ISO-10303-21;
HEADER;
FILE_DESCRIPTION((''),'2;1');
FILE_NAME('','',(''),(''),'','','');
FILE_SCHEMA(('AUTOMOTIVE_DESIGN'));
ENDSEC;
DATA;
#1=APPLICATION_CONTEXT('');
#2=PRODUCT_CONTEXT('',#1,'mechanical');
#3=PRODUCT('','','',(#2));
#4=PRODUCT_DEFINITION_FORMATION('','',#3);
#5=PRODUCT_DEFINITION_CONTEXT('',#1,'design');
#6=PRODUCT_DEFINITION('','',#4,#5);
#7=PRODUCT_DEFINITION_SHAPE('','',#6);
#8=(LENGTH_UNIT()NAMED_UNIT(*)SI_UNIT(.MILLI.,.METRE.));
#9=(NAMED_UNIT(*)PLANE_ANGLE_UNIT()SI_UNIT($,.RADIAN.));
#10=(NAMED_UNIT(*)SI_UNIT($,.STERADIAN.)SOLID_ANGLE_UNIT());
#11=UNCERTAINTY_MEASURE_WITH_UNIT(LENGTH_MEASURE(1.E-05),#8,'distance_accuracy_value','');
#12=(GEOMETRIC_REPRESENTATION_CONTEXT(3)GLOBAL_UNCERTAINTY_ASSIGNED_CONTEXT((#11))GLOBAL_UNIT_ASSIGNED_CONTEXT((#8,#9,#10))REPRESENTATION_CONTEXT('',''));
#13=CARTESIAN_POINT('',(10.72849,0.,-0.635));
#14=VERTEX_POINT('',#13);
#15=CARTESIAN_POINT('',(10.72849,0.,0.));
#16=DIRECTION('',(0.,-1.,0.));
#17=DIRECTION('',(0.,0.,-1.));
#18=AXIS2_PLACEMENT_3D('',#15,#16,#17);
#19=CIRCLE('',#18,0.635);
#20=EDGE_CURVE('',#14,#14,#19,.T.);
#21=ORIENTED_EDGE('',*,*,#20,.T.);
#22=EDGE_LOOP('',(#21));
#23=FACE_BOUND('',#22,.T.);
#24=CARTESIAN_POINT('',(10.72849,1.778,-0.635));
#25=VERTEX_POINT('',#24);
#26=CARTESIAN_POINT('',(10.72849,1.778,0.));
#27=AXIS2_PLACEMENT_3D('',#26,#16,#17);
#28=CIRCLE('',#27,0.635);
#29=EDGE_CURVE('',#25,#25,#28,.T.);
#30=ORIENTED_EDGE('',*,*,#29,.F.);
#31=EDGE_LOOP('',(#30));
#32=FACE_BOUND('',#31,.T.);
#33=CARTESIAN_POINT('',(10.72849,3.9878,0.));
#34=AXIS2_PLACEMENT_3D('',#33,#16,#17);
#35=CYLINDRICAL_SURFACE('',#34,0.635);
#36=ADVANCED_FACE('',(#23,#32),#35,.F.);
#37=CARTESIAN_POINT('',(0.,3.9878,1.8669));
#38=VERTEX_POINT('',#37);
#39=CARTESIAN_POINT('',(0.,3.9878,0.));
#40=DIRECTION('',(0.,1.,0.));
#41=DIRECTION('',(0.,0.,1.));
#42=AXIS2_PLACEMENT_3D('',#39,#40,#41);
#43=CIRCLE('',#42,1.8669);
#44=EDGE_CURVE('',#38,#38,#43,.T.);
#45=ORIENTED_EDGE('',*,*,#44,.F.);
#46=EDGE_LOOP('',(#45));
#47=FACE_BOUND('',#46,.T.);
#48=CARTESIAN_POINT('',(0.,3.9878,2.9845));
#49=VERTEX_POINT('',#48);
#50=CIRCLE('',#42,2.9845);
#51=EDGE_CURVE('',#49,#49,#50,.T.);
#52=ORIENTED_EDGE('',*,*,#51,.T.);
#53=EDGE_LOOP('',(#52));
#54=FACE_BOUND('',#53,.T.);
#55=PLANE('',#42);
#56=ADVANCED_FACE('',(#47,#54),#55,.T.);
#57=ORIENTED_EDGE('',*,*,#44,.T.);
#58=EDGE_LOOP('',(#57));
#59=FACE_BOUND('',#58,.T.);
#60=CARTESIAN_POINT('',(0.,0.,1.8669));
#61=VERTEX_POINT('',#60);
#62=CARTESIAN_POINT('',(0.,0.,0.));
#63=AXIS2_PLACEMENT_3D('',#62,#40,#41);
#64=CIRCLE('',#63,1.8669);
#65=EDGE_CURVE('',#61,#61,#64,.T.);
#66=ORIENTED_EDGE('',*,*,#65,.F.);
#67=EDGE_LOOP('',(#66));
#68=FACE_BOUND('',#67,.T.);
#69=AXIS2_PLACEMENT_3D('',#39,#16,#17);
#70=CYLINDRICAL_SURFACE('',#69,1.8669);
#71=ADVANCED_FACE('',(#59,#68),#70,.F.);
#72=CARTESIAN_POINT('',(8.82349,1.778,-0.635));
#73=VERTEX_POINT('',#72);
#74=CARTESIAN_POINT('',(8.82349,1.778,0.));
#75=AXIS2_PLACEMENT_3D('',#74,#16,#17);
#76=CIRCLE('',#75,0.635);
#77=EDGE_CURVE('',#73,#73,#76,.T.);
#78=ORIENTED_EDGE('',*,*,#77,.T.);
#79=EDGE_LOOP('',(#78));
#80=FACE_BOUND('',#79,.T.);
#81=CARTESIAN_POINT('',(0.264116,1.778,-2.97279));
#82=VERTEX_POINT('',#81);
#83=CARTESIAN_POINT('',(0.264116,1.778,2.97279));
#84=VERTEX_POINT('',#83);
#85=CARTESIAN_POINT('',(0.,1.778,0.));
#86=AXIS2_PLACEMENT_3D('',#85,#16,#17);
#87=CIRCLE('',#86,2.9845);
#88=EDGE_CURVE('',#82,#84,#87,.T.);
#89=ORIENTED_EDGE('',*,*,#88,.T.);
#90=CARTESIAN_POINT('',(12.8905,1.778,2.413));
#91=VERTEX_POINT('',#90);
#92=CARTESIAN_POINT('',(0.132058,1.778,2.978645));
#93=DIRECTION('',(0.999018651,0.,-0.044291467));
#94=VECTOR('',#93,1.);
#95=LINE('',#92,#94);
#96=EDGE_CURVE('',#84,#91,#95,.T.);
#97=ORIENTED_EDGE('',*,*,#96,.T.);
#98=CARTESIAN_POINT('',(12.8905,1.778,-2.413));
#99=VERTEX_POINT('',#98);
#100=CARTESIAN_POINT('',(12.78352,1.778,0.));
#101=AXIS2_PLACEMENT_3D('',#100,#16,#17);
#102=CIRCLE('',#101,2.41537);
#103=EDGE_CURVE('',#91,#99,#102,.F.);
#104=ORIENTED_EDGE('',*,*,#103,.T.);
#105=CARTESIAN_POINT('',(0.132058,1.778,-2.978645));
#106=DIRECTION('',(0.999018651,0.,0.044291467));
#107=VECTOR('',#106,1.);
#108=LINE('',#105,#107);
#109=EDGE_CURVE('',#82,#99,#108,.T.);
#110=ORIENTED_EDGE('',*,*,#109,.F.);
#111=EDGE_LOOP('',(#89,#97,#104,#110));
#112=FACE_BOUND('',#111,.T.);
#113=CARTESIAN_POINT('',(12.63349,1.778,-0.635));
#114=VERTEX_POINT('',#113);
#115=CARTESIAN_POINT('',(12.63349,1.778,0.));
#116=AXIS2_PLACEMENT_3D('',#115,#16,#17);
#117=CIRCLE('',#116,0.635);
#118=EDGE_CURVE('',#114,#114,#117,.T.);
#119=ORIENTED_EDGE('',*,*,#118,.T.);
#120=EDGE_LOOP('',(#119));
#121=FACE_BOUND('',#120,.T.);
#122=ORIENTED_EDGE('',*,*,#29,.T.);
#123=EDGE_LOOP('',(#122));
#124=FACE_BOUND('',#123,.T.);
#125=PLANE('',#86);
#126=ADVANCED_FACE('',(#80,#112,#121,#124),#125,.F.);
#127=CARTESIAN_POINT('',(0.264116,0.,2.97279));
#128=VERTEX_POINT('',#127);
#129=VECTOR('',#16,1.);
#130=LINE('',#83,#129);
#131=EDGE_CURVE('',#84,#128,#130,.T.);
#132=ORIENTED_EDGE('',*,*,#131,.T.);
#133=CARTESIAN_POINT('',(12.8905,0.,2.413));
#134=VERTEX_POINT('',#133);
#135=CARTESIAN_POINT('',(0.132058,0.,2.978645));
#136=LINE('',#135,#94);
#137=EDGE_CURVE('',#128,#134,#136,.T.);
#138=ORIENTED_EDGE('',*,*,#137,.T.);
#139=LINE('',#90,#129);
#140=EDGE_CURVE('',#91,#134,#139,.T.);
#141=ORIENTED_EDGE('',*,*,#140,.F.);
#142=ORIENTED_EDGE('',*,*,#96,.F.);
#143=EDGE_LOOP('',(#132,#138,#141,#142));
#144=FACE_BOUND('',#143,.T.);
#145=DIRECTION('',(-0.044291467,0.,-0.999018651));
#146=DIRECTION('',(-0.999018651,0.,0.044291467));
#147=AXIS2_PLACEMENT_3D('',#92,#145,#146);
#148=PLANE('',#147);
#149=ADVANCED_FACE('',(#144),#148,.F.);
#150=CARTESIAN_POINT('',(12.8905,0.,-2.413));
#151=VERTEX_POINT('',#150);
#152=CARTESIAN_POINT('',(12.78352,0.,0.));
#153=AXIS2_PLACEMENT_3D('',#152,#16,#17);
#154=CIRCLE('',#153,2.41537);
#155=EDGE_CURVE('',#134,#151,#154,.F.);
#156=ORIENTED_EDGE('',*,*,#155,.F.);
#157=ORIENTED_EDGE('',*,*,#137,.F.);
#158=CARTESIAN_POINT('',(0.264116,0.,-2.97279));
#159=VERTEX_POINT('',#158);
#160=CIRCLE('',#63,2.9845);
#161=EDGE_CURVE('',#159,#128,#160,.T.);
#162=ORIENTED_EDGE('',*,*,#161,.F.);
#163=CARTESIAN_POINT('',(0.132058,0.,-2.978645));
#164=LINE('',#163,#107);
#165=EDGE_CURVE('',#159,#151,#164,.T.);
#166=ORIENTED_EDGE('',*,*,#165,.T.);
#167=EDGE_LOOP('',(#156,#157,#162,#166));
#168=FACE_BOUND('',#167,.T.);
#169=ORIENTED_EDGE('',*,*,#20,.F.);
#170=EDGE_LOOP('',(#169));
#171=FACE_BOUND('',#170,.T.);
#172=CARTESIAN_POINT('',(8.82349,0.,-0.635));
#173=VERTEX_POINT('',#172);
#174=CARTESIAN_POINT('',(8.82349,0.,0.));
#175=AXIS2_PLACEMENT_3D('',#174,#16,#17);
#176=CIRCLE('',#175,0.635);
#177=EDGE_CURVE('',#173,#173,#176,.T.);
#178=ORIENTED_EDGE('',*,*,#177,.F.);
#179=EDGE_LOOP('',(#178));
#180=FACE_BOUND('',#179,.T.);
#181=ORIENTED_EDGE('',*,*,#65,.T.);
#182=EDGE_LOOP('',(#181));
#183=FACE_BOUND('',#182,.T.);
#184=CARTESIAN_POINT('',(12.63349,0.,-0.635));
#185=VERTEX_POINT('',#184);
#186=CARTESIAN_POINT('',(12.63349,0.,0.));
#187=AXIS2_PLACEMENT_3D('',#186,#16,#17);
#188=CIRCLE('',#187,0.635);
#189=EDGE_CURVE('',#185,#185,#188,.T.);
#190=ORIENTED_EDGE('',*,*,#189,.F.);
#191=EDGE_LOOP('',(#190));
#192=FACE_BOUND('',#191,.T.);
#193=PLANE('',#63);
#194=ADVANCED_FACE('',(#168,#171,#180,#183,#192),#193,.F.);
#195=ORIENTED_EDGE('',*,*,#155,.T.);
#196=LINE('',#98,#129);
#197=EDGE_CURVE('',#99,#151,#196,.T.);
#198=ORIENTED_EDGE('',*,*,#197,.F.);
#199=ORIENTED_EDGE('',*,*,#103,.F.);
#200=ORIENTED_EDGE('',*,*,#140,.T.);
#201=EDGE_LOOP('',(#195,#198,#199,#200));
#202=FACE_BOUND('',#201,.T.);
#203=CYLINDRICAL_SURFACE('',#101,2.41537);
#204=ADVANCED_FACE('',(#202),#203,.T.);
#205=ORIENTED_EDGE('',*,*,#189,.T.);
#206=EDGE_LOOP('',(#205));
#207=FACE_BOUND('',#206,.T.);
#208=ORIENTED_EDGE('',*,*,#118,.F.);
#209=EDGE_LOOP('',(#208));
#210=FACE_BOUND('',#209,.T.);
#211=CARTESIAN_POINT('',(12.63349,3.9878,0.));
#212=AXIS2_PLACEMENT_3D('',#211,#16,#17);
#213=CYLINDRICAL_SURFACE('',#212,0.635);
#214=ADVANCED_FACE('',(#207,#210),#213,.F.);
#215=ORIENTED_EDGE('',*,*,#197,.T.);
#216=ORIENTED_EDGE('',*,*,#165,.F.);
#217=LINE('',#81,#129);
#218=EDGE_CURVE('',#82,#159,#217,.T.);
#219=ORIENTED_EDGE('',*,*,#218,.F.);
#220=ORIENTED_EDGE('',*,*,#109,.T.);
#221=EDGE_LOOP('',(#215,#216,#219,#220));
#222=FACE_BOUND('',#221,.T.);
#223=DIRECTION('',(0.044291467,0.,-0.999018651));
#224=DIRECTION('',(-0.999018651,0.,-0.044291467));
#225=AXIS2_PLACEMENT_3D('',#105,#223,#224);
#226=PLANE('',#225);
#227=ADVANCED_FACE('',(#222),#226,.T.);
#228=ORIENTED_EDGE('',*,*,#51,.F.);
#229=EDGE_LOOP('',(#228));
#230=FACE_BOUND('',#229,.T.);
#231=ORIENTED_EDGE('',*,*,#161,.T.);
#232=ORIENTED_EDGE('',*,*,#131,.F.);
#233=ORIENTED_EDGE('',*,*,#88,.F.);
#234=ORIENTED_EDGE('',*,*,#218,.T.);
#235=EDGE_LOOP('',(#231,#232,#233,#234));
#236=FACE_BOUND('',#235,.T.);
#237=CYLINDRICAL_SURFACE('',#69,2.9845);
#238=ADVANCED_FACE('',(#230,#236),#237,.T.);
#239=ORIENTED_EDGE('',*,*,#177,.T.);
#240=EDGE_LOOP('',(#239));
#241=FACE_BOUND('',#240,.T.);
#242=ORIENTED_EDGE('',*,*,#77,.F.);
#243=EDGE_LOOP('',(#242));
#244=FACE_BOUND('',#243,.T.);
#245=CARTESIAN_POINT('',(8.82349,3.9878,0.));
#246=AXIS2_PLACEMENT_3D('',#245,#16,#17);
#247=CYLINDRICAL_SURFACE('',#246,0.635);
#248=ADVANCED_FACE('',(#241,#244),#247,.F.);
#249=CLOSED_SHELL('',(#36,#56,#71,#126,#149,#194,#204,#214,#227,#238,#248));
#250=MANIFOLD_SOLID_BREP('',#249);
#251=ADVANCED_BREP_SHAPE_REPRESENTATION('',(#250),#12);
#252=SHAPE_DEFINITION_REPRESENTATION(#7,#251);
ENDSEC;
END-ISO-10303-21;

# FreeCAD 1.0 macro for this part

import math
import FreeCAD as App
import Part
import Sketcher
Q = App.Units.Quantity

doc = App.newDocument("Part")
body = doc.addObject("PartDesign::Body", "Body")

# Sketch on XZ plane
sketch1 = body.newObject("Sketcher::SketchObject", "Sketch")
sketch1.AttachmentSupport = (doc.getObject("XZ_Plane"), [""])
sketch1.MapMode = "FlatFace"
sketch1.addGeometry([
    Part.Circle(App.Vector(0, 0, 0), App.Vector(0, 0, 1), 2.9845),
    Part.Circle(App.Vector(0, 0, 0), App.Vector(0, 0, 1), 1.8669),
], False)
sketch1.addConstraint([
    Sketcher.Constraint("Coincident", 0, 3, -1, 1),
    Sketcher.Constraint("Coincident", 1, 3, -1, 1),
    Sketcher.Constraint("Diameter", 0, Q("0.235 in")),
    Sketcher.Constraint("Diameter", 1, Q("0.147 in")),
])
pad1 = body.newObject("PartDesign::Pad", "Pad")
pad1.Profile = sketch1
pad1.Length = Q("0.157 in")
pad1.Reversed = True

# Sketch on XZ plane
sketch2 = body.newObject("Sketcher::SketchObject", "Sketch001")
sketch2.AttachmentSupport = (doc.getObject("XZ_Plane"), [""])
sketch2.MapMode = "FlatFace"
sketch2.addGeometry([
    Part.LineSegment(App.Vector(12.8905, 2.413, 0), App.Vector(0.264116, 2.97279, 0)),  # 0
    Part.ArcOfCircle(Part.Circle(App.Vector(0, 0, 0), App.Vector(0, 0, 1), 2.9845), math.radians(0), math.radians(84.922911)),  # 1
    Part.ArcOfCircle(Part.Circle(App.Vector(0, 0, 0), App.Vector(0, 0, 1), 2.9845), math.radians(-84.922911), math.radians(0)),  # 2
    Part.LineSegment(App.Vector(0.264116, -2.97279, 0), App.Vector(12.8905, -2.413, 0)),  # 3
    Part.ArcOfCircle(Part.Circle(App.Vector(12.78352, 0, 0), App.Vector(0, 0, 1), 2.41537), math.radians(-87.461455), math.radians(87.461455)),  # 4
], False)
sketch2.addConstraint([
    Sketcher.Constraint("Coincident", 0, 2, 1, 2),
    Sketcher.Constraint("Coincident", 1, 1, 2, 2),
    Sketcher.Constraint("Coincident", 2, 1, 3, 1),
    Sketcher.Constraint("Coincident", 3, 2, 4, 1),
    Sketcher.Constraint("Coincident", 4, 2, 0, 1),
    Sketcher.Constraint("Coincident", 1, 3, -1, 1),
    Sketcher.Constraint("Coincident", 2, 3, -1, 1),
    Sketcher.Constraint("PointOnObject", 4, 3, -1),
    Sketcher.Constraint("PointOnObject", 1, 1, -1),
    Sketcher.Constraint("Radius", 1, Q("0.1175 in")),
    Sketcher.Constraint("DistanceX", 1, 1, 3, 2, Q("0.39 in")),
    Sketcher.Constraint("DistanceY", 3, 2, 4, 2, Q("0.19 in")),
    Sketcher.Constraint("DistanceX", 1, 1, 4, 2, Q("0.39 in")),
    Sketcher.Constraint("Radius", 4, 2.41537),
    Sketcher.Constraint("DistanceY", -1, 1, 0, 2, 2.97279),
    Sketcher.Constraint("DistanceY", 2, 1, -1, 1, 2.97279),
])
pad2 = body.newObject("PartDesign::Pad", "Pad001")
pad2.Profile = sketch2
pad2.Length = Q("0.07 in")
pad2.Reversed = True

# Sketch on XZ plane
sketch3 = body.newObject("Sketcher::SketchObject", "Sketch002")
sketch3.AttachmentSupport = (doc.getObject("XZ_Plane"), [""])
sketch3.MapMode = "FlatFace"
sketch3.addGeometry([
    Part.Circle(App.Vector(8.82349, 0, 0), App.Vector(0, 0, 1), 0.635),
    Part.Circle(App.Vector(10.72849, 0, 0), App.Vector(0, 0, 1), 0.635),
    Part.Circle(App.Vector(12.63349, 0, 0), App.Vector(0, 0, 1), 0.635),
], False)
sketch3.addConstraint([
    Sketcher.Constraint("Equal", 0, 1),
    Sketcher.Constraint("Equal", 1, 2),
    Sketcher.Constraint("PointOnObject", 0, 3, -1),
    Sketcher.Constraint("PointOnObject", 1, 3, -1),
    Sketcher.Constraint("PointOnObject", 2, 3, -1),
    Sketcher.Constraint("Diameter", 0, Q("0.05 in")),
    Sketcher.Constraint("DistanceX", 0, 3, 2, 3, Q("0.15 in")),
    Sketcher.Constraint("DistanceX", 0, 3, 1, 3, Q("0.075 in")),
    Sketcher.Constraint("DistanceX", -1, 1, 0, 3, 8.82349),
])
pocket1 = body.newObject("PartDesign::Pocket", "Pocket")
pocket1.Profile = sketch3
pocket1.Type = "ThroughAll"

doc.recompute()
